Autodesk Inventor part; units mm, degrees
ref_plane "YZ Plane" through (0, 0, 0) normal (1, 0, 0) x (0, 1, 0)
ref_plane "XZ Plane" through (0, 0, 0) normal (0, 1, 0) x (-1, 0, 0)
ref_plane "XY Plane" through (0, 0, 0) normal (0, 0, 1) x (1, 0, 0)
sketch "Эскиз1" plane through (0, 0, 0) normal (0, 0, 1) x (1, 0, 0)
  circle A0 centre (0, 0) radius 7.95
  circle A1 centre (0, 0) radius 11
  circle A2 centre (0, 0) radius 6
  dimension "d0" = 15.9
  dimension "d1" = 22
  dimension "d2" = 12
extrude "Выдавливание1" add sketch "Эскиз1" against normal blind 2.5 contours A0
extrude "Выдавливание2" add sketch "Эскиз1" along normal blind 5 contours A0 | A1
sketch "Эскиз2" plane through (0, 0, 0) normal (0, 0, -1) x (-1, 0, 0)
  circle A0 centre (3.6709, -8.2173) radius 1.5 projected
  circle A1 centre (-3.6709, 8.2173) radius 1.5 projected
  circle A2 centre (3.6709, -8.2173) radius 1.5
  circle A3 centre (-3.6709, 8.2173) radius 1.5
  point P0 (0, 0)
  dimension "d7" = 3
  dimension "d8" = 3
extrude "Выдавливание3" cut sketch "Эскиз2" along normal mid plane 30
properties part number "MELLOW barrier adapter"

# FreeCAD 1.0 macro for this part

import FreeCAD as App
import Part
import Sketcher

V = App.Vector

doc = App.newDocument("Part")
body = doc.addObject("PartDesign::Body", "Body")

# Sketch on XY plane
sketch1 = doc.addObject("Sketcher::SketchObject", "Sketch")
body.addObject(sketch1)
sketch1.AttachmentSupport = (doc.XY_Plane, [""])
sketch1.MapMode = "FlatFace"
sketch1.addGeometry(Part.Circle(V(0, 0, 0), V(0, 0, 1), 8), False)
sketch1.addGeometry(Part.Circle(V(0, 0, 0), V(0, 0, 1), 6), False)
sketch1.addConstraint(Sketcher.Constraint("Coincident", 0, 3, -1, 1))
sketch1.addConstraint(Sketcher.Constraint("Coincident", 1, 3, -1, 1))
sketch1.addConstraint(Sketcher.Constraint("Diameter", 1, 12.0))
sketch1.addConstraint(Sketcher.Constraint("Diameter", 0, 15.9))
pad1 = doc.addObject("PartDesign::Pad", "Pad")
body.addObject(pad1)
pad1.Profile = sketch1
pad1.Length = 2.5
pad1.Reversed = True

# Sketch on XY plane
sketch2 = doc.addObject("Sketcher::SketchObject", "Sketch001")
body.addObject(sketch2)
sketch2.AttachmentSupport = (doc.XY_Plane, [""])
sketch2.MapMode = "FlatFace"
sketch2.addGeometry(Part.Circle(V(0, 0, 0), V(0, 0, 1), 11), False)
sketch2.addGeometry(Part.Circle(V(0, 0, 0), V(0, 0, 1), 6), False)
sketch2.addConstraint(Sketcher.Constraint("Coincident", 0, 3, -1, 1))
sketch2.addConstraint(Sketcher.Constraint("Coincident", 1, 3, -1, 1))
sketch2.addConstraint(Sketcher.Constraint("Diameter", 0, 22.0))
sketch2.addConstraint(Sketcher.Constraint("Diameter", 1, 12.0))
pad2 = doc.addObject("PartDesign::Pad", "Pad001")
body.addObject(pad2)
pad2.Profile = sketch2
pad2.Length = 5

# Sketch on XY plane
sketch3 = doc.addObject("Sketcher::SketchObject", "Sketch002")
body.addObject(sketch3)
sketch3.AttachmentSupport = (doc.XY_Plane, [""])
sketch3.MapMode = "FlatFace"
sketch3.addGeometry(Part.Circle(V(-3.7, -8.2, 0), V(0, 0, 1), 1.5), False)
sketch3.addGeometry(Part.Circle(V(3.7, 8.2, 0), V(0, 0, 1), 1.5), False)
sketch3.addConstraint(Sketcher.Constraint("Equal", 0, 1))
sketch3.addConstraint(Sketcher.Constraint("Symmetric", 0, 3, 1, 3, -1, 1))
sketch3.addConstraint(Sketcher.Constraint("Diameter", 0, 3.0))
sketch3.addConstraint(Sketcher.Constraint("DistanceX", 0, 3, -1, 1, 3.671))
sketch3.addConstraint(Sketcher.Constraint("DistanceY", 0, 3, -1, 1, 8.2173))
pocket1 = doc.addObject("PartDesign::Pocket", "Pocket")
body.addObject(pocket1)
pocket1.Profile = sketch3
pocket1.Length = 30
pocket1.Midplane = True

doc.recompute()
